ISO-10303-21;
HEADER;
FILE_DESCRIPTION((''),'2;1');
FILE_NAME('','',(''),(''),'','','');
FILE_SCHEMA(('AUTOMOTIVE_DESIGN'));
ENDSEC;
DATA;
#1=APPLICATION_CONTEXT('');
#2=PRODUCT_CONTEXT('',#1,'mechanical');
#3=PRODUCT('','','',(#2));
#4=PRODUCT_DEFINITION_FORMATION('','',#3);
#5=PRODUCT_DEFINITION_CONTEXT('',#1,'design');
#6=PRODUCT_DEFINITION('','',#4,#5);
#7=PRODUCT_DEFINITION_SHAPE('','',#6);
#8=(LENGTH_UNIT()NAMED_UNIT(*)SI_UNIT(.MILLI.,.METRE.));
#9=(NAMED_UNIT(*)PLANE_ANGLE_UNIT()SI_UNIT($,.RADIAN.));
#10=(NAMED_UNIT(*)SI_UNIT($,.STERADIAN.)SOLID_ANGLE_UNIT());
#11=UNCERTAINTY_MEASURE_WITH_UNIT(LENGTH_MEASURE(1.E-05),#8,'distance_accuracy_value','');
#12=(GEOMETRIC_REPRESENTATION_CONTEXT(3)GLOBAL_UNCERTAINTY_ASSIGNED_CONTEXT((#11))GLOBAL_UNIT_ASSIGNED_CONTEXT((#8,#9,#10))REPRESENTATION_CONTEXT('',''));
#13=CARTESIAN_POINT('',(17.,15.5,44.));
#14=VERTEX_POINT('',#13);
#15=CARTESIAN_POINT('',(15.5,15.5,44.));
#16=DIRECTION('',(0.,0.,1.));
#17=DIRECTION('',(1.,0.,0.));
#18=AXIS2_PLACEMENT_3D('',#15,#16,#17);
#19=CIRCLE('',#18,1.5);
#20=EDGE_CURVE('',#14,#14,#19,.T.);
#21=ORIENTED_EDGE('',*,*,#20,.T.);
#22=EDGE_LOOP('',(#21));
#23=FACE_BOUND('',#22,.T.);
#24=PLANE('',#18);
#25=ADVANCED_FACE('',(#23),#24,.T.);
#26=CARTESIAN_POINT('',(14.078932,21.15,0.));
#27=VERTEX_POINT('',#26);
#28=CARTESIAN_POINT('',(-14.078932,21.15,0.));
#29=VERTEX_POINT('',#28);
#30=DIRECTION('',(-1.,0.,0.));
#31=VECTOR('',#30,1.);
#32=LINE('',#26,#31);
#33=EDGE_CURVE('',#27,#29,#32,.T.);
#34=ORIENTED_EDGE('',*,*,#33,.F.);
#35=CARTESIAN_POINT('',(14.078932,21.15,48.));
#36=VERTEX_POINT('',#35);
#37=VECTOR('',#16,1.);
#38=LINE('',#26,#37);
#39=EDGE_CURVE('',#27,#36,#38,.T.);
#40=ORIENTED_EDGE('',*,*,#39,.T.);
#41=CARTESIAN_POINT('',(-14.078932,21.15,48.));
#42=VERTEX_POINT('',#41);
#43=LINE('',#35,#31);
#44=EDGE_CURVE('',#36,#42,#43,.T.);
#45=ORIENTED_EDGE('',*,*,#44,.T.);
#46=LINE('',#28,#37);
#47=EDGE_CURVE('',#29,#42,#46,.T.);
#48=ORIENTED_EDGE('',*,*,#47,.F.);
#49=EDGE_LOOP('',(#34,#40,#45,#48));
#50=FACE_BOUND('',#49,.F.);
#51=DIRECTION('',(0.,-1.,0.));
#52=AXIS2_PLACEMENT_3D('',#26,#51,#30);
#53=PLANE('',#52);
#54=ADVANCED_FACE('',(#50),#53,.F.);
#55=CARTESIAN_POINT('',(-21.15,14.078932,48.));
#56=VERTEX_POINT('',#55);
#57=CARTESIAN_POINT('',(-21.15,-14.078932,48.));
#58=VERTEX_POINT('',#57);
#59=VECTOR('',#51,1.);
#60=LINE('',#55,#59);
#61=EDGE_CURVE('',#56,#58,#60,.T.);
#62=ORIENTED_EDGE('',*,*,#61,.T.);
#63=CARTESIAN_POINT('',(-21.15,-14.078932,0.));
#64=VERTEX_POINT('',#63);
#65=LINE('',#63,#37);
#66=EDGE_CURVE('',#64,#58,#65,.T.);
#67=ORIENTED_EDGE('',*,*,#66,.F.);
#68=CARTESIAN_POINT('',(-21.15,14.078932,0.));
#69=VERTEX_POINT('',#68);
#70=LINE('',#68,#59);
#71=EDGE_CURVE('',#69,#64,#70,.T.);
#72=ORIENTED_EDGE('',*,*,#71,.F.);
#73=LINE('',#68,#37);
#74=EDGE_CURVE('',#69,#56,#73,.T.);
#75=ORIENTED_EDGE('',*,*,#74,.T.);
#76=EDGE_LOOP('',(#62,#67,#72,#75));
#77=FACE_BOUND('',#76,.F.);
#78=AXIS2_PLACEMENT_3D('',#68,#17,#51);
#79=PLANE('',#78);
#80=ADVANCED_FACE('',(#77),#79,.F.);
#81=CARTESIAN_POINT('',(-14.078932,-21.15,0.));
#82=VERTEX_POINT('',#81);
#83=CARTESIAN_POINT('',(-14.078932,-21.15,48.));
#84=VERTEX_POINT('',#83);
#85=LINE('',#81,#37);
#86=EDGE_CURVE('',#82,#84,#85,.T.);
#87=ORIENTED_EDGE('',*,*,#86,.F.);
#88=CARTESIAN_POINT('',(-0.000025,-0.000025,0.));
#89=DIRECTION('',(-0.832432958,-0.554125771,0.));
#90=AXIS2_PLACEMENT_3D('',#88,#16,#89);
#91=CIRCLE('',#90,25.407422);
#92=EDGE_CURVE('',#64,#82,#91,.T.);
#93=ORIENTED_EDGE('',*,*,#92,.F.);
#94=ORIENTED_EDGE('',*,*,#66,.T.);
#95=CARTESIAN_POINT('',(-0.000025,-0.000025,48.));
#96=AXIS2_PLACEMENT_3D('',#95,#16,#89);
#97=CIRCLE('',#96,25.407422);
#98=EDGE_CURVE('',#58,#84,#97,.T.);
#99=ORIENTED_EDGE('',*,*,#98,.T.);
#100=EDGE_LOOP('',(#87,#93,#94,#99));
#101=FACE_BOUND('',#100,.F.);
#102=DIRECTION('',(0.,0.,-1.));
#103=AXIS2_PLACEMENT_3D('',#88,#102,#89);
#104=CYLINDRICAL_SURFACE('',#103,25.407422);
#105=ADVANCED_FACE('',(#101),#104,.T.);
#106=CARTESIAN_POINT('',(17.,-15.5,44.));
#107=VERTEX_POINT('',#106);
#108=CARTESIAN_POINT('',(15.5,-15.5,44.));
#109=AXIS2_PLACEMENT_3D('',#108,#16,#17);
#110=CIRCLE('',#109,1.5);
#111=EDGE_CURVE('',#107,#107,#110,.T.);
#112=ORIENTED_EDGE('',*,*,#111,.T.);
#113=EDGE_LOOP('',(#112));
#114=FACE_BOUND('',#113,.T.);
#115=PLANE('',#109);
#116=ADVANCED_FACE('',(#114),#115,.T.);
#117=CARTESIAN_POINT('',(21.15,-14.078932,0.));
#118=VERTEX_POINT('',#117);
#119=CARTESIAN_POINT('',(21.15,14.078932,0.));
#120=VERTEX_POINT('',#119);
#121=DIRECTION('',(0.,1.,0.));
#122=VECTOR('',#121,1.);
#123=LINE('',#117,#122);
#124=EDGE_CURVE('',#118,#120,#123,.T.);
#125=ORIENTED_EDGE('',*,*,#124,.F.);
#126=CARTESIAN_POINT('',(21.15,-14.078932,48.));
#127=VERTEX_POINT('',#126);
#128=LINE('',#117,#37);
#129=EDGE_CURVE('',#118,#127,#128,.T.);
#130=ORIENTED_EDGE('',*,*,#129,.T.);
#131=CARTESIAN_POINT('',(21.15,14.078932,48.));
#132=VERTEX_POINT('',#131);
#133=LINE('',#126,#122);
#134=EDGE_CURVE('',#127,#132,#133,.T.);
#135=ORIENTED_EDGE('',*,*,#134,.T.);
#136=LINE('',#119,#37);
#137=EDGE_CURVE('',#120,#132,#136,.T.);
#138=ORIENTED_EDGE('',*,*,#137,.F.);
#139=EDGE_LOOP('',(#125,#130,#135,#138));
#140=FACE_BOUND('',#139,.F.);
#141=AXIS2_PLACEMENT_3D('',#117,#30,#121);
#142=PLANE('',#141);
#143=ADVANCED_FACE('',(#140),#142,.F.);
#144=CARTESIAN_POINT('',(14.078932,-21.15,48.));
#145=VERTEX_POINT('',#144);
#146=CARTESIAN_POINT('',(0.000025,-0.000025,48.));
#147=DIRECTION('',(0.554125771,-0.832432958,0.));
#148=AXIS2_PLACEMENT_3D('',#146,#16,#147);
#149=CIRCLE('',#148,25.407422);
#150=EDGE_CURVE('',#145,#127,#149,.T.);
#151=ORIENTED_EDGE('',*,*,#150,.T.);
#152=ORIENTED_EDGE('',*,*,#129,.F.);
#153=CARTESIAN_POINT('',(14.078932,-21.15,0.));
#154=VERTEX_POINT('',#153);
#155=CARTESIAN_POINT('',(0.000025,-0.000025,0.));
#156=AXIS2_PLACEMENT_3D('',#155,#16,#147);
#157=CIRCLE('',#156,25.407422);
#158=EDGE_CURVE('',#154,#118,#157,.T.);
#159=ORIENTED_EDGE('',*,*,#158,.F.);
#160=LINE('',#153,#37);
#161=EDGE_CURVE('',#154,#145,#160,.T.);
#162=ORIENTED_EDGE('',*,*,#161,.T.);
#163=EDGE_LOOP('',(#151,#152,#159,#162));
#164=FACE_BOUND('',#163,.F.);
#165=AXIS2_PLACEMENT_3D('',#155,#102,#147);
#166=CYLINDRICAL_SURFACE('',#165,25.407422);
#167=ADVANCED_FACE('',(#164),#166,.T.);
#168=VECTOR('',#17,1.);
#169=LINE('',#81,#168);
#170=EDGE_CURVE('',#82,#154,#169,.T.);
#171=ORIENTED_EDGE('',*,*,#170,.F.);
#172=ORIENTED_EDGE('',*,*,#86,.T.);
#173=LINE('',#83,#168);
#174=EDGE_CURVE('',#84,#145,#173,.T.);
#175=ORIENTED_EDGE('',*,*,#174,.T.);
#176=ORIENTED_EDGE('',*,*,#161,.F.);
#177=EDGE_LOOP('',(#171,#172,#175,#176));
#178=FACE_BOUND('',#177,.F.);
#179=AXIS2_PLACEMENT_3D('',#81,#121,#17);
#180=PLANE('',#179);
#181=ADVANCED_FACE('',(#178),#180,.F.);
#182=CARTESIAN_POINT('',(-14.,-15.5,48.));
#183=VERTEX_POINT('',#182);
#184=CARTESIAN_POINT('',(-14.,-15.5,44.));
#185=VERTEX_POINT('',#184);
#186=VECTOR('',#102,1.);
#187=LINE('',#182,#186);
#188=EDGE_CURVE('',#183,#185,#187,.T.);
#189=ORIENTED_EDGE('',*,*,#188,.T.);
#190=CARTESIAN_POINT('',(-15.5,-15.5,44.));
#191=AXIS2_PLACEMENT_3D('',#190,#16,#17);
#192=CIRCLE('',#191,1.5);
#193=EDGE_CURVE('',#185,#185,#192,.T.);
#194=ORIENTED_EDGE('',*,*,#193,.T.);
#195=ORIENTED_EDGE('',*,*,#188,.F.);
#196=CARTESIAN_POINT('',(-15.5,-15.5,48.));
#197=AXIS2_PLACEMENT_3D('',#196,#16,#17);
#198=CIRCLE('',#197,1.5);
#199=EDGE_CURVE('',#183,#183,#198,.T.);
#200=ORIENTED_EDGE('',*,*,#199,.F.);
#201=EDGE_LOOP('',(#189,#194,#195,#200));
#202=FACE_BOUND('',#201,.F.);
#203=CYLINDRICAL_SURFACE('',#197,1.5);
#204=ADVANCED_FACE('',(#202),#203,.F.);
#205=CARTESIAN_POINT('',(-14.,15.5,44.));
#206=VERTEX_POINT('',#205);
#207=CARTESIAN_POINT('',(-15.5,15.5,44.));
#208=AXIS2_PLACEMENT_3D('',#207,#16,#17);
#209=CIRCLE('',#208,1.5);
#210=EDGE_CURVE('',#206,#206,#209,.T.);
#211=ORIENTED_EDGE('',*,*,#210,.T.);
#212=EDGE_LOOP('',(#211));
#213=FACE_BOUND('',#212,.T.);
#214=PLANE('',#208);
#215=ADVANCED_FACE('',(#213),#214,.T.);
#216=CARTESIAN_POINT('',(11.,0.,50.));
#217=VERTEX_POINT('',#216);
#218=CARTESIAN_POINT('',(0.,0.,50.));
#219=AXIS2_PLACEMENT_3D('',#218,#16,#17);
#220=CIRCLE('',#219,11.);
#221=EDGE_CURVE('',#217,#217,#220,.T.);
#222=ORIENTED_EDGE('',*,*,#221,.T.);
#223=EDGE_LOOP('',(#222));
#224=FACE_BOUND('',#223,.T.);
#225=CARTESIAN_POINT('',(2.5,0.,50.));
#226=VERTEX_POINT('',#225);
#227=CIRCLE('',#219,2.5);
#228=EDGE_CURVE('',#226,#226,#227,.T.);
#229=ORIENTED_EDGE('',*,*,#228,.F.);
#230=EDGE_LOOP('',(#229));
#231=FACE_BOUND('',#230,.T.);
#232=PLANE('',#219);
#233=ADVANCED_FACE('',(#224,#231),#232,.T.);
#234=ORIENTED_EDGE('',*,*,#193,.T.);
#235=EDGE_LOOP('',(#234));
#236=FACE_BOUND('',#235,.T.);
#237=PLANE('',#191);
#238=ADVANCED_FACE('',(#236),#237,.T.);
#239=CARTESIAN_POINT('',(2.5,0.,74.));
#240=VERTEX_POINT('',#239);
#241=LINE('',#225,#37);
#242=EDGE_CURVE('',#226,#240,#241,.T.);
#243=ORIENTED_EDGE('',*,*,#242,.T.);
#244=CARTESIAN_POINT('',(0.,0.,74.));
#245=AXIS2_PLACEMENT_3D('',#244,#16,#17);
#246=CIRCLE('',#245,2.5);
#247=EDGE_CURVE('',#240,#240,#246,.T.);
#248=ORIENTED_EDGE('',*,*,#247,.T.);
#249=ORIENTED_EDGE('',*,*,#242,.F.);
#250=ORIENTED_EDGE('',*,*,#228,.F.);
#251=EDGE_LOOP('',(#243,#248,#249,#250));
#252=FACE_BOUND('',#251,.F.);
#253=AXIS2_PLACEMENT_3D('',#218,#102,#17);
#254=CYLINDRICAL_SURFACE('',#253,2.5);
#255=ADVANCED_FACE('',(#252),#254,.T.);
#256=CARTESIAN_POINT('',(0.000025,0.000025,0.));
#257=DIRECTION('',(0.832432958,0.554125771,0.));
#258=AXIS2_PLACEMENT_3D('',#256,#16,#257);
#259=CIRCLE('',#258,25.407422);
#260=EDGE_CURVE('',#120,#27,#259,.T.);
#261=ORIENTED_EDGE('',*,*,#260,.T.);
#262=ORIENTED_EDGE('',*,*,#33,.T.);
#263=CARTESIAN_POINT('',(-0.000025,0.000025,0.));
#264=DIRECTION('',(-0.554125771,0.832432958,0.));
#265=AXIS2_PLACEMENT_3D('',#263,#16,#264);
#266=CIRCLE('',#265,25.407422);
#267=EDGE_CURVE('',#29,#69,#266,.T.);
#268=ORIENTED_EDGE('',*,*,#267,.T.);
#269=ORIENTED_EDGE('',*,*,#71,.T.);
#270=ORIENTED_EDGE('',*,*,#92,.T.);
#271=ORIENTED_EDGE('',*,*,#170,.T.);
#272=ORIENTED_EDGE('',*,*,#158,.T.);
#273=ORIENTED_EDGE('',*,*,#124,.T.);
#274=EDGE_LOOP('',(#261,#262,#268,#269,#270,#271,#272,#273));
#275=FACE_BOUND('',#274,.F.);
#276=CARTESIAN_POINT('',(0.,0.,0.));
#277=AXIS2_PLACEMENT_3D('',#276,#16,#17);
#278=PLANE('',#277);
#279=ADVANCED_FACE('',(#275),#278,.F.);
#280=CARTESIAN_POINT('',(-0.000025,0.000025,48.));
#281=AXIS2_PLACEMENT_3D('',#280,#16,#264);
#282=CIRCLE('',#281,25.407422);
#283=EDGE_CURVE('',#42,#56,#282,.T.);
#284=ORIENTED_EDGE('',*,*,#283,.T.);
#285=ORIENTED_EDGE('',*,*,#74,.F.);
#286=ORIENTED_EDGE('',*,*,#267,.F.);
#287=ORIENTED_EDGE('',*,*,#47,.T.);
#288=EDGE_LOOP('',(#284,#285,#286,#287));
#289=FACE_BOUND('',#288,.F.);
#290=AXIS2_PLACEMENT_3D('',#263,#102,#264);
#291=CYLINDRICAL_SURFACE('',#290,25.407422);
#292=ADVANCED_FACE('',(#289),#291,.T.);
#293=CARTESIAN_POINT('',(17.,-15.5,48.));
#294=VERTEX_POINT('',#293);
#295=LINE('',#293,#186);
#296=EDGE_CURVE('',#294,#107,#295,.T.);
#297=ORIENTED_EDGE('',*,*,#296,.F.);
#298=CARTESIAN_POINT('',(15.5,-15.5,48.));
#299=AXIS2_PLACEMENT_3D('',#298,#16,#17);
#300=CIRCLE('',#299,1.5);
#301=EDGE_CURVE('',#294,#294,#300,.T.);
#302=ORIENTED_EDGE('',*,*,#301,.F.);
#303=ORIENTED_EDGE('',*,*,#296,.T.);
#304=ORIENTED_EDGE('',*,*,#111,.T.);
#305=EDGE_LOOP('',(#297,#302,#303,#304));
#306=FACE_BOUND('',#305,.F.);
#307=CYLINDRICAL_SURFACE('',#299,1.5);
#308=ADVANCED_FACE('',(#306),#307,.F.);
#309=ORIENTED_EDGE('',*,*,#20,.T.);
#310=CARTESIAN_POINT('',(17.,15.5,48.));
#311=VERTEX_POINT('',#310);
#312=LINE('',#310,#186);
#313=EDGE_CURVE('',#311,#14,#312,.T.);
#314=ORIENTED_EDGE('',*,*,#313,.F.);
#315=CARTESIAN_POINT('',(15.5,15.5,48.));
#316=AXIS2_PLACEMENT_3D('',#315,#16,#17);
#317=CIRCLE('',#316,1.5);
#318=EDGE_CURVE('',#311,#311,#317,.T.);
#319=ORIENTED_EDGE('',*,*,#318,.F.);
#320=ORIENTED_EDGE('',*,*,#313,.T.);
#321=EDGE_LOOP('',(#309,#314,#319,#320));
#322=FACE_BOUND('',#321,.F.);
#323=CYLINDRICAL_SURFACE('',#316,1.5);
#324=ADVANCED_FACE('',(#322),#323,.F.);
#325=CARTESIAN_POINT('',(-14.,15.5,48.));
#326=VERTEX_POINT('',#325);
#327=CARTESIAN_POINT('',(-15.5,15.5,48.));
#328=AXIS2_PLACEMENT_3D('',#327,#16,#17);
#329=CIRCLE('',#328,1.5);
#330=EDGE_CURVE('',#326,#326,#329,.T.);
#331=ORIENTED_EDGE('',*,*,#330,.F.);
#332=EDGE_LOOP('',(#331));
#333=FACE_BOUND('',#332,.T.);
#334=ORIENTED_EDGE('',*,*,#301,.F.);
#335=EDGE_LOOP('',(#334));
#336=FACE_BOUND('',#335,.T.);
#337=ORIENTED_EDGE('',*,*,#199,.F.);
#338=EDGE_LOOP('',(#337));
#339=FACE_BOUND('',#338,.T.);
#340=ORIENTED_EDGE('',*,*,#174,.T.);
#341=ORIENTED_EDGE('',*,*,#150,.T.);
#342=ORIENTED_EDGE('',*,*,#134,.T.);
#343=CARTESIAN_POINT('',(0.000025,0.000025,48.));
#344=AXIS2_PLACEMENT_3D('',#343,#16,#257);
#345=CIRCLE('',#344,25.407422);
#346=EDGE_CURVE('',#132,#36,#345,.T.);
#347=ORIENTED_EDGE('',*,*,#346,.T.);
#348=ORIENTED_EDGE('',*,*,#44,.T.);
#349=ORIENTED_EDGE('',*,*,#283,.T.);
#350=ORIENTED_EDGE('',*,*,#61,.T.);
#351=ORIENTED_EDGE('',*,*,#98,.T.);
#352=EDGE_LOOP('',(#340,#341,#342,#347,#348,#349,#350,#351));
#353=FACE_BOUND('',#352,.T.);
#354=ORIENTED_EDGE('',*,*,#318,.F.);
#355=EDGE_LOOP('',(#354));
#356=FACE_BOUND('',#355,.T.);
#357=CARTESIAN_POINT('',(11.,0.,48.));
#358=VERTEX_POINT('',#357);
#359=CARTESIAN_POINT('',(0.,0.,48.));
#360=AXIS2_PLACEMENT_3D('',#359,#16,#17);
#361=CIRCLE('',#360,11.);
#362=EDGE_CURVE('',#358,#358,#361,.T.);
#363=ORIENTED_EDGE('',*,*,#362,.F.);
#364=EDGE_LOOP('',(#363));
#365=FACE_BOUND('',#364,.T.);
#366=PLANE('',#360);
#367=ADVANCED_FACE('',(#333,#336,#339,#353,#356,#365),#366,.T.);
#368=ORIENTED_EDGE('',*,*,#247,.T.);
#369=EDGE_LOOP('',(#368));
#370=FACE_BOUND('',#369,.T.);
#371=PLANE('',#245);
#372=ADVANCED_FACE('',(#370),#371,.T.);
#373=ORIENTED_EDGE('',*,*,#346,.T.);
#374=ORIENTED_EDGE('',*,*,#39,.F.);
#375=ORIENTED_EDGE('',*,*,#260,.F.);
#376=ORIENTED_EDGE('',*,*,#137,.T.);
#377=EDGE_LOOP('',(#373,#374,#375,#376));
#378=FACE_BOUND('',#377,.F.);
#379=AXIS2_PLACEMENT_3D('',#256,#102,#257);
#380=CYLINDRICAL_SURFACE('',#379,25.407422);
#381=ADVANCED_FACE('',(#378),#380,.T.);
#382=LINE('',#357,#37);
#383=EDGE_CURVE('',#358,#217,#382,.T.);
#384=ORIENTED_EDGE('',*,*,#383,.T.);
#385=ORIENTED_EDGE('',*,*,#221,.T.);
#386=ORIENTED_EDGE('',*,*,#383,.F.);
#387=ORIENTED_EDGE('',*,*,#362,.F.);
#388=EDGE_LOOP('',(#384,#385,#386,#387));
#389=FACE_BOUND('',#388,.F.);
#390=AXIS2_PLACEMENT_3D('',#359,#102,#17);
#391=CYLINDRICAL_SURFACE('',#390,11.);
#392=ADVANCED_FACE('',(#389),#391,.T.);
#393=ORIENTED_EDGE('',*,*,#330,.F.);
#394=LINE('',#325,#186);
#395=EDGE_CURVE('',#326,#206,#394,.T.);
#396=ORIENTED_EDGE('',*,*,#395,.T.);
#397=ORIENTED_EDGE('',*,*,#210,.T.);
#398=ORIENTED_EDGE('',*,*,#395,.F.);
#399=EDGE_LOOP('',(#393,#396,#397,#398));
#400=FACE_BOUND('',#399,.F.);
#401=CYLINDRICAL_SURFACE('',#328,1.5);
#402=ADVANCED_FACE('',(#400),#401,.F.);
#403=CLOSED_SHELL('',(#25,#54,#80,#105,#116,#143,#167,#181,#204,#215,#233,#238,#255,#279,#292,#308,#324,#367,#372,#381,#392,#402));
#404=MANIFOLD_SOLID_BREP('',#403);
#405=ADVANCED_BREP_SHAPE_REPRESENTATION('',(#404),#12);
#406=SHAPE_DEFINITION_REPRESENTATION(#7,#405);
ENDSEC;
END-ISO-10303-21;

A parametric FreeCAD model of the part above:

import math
import FreeCAD as App
import Part
import Sketcher
from FreeCAD import Vector

doc = App.newDocument("Part")
body = doc.addObject("PartDesign::Body", "Body")

# Sketch on XY plane
sketch1 = body.newObject("Sketcher::SketchObject", "Sketch")
sketch1.AttachmentSupport = (doc.getObject("XY_Plane"), [""])
sketch1.MapMode = "FlatFace"
sketch1.addGeometry([
    Part.ArcOfCircle(Part.Circle(Vector(0.000025, 0.000025, 0), Vector(0, 0, 1), 25.407422), math.radians(33.650521), math.radians(56.349479)),  # 0
    Part.LineSegment(Vector(14.078932, 21.15, 0), Vector(-14.078932, 21.15, 0)),  # 1
    Part.ArcOfCircle(Part.Circle(Vector(-0.000025, 0.000025, 0), Vector(0, 0, 1), 25.407422), math.radians(123.650521), math.radians(146.349479)),  # 2
    Part.LineSegment(Vector(-21.15, 14.078932, 0), Vector(-21.15, -14.078932, 0)),  # 3
    Part.ArcOfCircle(Part.Circle(Vector(-0.000025, -0.000025, 0), Vector(0, 0, 1), 25.407422), math.radians(-146.349479), math.radians(-123.650521)),  # 4
    Part.LineSegment(Vector(-14.078932, -21.15, 0), Vector(14.078932, -21.15, 0)),  # 5
    Part.ArcOfCircle(Part.Circle(Vector(0.000025, -0.000025, 0), Vector(0, 0, 1), 25.407422), math.radians(-56.349479), math.radians(-33.650521)),  # 6
    Part.LineSegment(Vector(21.15, -14.078932, 0), Vector(21.15, 14.078932, 0)),  # 7
], False)
sketch1.addConstraint([
    Sketcher.Constraint("Coincident", 0, 2, 1, 1),
    Sketcher.Constraint("Coincident", 1, 2, 2, 1),
    Sketcher.Constraint("Coincident", 2, 2, 3, 1),
    Sketcher.Constraint("Coincident", 3, 2, 4, 1),
    Sketcher.Constraint("Coincident", 4, 2, 5, 1),
    Sketcher.Constraint("Coincident", 5, 2, 6, 1),
    Sketcher.Constraint("Coincident", 6, 2, 7, 1),
    Sketcher.Constraint("Coincident", 7, 2, 0, 1),
    Sketcher.Constraint("Horizontal", 1),
    Sketcher.Constraint("Vertical", 3),
    Sketcher.Constraint("Horizontal", 5),
    Sketcher.Constraint("Vertical", 7),
    Sketcher.Constraint("Equal", 0, 2),
    Sketcher.Constraint("Equal", 2, 4),
    Sketcher.Constraint("Equal", 4, 6),
    Sketcher.Constraint("Symmetric", 0, 3, 4, 3, -1, 1),
    Sketcher.Constraint("Symmetric", 2, 3, 6, 3, -1, 1),
    Sketcher.Constraint("Symmetric", 0, 3, 2, 3, -2),
    Sketcher.Constraint("Horizontal", 3, 2, 6, 2),
    Sketcher.Constraint("Vertical", 1, 2, 4, 2),
    Sketcher.Constraint("Equal", 5, 3),
    Sketcher.Constraint("DistanceY", -1, 1, 0, 2, 21.15),
    Sketcher.Constraint("DistanceX", 2, 2, -1, 1, 21.15),
    Sketcher.Constraint("Radius", 0, 25.407422),
    Sketcher.Constraint("DistanceX", 1, 2, 1, 1, 28.157864),
])
pad1 = body.newObject("PartDesign::Pad", "Pad")
pad1.Profile = sketch1
pad1.Length = 48

# Sketch on XY plane
sketch2 = body.newObject("Sketcher::SketchObject", "Sketch001")
sketch2.AttachmentSupport = (doc.getObject("XY_Plane"), [""])
sketch2.MapMode = "FlatFace"
sketch2.AttachmentOffset = App.Placement(Vector(0, 0, 48), App.Rotation())
sketch2.addGeometry(Part.Circle(Vector(0, 0, 0), Vector(0, 0, 1), 11), False)
sketch2.addConstraint([
    Sketcher.Constraint("Coincident", 0, 3, -1, 1),
    Sketcher.Constraint("Diameter", 0, 22.0),
])
pad2 = body.newObject("PartDesign::Pad", "Pad001")
pad2.Profile = sketch2
pad2.Length = 2

# Sketch on XY plane
sketch3 = body.newObject("Sketcher::SketchObject", "Sketch002")
sketch3.AttachmentSupport = (doc.getObject("XY_Plane"), [""])
sketch3.MapMode = "FlatFace"
sketch3.AttachmentOffset = App.Placement(Vector(0, 0, 50), App.Rotation())
sketch3.addGeometry(Part.Circle(Vector(0, 0, 0), Vector(0, 0, 1), 2.5), False)
sketch3.addConstraint([
    Sketcher.Constraint("Coincident", 0, 3, -1, 1),
    Sketcher.Constraint("Diameter", 0, 5.0),
])
pad3 = body.newObject("PartDesign::Pad", "Pad002")
pad3.Profile = sketch3
pad3.Length = 24

# Sketch on XY plane
sketch4 = body.newObject("Sketcher::SketchObject", "Sketch003")
sketch4.AttachmentSupport = (doc.getObject("XY_Plane"), [""])
sketch4.MapMode = "FlatFace"
sketch4.AttachmentOffset = App.Placement(Vector(0, 0, 48), App.Rotation())
sketch4.addGeometry([
    Part.Circle(Vector(-15.5, -15.5, 0), Vector(0, 0, 1), 1.5),
    Part.Circle(Vector(15.5, -15.5, 0), Vector(0, 0, 1), 1.5),
    Part.Circle(Vector(15.5, 15.5, 0), Vector(0, 0, 1), 1.5),
    Part.Circle(Vector(-15.5, 15.5, 0), Vector(0, 0, 1), 1.5),
], False)
sketch4.addConstraint([
    Sketcher.Constraint("Equal", 0, 1),
    Sketcher.Constraint("Equal", 1, 2),
    Sketcher.Constraint("Equal", 2, 3),
    Sketcher.Constraint("Symmetric", 0, 3, 2, 3, -1, 1),
    Sketcher.Constraint("Symmetric", 1, 3, 3, 3, -1, 1),
    Sketcher.Constraint("Symmetric", 0, 3, 1, 3, -2),
    Sketcher.Constraint("Diameter", 0, 3.0),
    Sketcher.Constraint("DistanceX", 0, 3, 1, 3, 31.0),
    Sketcher.Constraint("DistanceY", 1, 3, 2, 3, 31.0),
])
pocket1 = body.newObject("PartDesign::Pocket", "Pocket")
pocket1.Profile = sketch4
pocket1.Length = 4

doc.recompute()
